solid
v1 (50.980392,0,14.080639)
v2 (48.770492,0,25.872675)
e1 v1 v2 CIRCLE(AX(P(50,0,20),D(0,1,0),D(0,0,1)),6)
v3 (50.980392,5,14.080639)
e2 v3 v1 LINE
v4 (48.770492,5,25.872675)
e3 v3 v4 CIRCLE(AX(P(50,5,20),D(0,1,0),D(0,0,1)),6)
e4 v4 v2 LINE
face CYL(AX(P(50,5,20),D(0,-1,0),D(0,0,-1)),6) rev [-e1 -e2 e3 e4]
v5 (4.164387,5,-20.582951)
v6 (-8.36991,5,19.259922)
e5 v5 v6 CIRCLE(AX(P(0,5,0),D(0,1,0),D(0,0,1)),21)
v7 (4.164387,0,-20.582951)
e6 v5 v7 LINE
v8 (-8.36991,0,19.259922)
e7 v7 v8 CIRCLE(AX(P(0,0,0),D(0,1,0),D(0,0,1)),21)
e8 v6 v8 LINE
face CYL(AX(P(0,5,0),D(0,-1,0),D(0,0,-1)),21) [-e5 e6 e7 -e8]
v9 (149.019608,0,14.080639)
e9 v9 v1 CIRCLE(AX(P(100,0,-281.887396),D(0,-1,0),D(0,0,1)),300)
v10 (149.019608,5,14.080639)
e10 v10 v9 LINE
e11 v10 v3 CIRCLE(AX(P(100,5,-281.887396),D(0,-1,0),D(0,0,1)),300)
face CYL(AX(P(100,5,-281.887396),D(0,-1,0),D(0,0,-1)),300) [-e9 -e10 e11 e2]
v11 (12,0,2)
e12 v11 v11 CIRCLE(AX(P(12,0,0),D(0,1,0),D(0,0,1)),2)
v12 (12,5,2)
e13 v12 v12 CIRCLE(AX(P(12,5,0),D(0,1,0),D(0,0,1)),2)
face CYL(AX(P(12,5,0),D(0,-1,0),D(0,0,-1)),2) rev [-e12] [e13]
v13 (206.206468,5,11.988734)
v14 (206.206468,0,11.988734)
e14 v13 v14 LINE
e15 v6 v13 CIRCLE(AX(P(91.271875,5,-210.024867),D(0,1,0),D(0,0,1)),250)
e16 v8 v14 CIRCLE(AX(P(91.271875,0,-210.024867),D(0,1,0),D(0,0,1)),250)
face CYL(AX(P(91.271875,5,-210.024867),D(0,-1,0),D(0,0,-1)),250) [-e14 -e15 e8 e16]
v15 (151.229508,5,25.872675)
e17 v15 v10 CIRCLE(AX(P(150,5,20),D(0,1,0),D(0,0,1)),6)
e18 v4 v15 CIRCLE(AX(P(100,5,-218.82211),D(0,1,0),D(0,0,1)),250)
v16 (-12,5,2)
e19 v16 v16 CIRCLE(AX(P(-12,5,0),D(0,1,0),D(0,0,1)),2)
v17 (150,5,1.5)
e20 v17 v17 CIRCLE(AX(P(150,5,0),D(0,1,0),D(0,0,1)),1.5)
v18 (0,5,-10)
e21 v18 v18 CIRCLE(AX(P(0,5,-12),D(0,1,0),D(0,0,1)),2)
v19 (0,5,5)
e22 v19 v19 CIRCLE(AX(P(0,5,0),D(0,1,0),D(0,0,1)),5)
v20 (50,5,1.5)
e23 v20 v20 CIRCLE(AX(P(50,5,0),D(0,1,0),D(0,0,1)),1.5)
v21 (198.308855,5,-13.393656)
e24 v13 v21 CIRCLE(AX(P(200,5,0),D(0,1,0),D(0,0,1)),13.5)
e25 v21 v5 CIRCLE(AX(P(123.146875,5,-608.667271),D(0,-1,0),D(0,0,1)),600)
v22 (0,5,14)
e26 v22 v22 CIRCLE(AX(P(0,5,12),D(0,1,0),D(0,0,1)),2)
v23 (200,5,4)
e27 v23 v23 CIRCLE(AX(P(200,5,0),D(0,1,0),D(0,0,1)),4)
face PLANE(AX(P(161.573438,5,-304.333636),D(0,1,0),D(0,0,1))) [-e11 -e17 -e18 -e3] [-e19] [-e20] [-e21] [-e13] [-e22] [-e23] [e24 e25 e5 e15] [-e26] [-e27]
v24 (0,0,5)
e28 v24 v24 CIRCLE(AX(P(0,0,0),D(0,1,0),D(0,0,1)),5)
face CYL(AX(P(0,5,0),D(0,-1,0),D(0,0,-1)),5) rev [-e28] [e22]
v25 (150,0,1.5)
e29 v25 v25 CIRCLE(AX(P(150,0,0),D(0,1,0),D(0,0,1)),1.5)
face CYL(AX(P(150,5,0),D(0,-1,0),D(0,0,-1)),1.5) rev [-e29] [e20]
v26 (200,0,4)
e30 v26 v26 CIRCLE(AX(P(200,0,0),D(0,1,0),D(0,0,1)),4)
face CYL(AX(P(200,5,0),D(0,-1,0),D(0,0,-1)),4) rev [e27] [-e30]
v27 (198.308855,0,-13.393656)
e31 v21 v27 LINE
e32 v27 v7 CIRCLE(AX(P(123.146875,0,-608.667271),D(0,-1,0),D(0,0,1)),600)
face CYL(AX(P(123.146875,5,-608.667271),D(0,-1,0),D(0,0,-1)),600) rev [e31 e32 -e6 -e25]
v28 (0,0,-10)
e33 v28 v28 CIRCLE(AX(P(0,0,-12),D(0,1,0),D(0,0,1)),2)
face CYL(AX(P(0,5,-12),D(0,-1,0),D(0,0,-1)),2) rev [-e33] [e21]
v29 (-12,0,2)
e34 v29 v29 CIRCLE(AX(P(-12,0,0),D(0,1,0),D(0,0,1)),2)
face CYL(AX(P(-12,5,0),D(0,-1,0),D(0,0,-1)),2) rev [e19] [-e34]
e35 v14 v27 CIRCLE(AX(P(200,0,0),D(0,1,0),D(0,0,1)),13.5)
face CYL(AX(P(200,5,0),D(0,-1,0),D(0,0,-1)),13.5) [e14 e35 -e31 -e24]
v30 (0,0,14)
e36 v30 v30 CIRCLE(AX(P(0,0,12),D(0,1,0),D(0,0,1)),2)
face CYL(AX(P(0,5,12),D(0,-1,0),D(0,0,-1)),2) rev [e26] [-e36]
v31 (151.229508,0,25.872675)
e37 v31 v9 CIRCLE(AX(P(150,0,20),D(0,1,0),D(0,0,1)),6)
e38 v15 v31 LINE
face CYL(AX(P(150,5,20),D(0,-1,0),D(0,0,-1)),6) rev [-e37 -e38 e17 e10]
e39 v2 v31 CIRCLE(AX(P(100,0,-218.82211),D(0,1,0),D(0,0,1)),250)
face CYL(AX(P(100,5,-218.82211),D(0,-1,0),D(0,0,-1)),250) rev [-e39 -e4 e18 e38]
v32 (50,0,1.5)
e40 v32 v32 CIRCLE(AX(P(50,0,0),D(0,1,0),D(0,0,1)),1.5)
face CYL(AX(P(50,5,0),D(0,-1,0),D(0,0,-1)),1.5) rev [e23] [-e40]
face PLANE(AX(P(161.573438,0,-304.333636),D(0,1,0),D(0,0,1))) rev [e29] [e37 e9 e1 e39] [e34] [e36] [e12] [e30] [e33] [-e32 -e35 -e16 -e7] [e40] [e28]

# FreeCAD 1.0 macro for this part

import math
import FreeCAD as App
import Part
import Sketcher

V = App.Vector

doc = App.newDocument("Part")
params = doc.addObject("Spreadsheet::Sheet", "Params")
for row, (alias, value) in enumerate([
    ("sketch1_diameter", "4 mm"),
    ("sketch1_diameter2", "10 mm"),
    ("sketch1_diameter3", "3 mm"),
    ("sketch1_diameter4", "8 mm"),
    ("sketch1_radius", "21 mm"),
    ("pad1_length", "5 mm"),
], start=1):
    params.set(f"A{row}", alias)
    params.set(f"B{row}", "=" + value)
    params.setAlias(f"B{row}", alias)

body = doc.addObject("PartDesign::Body", "Body")

# Sketch on XZ plane
sketch1 = body.newObject("Sketcher::SketchObject", "Sketch")
sketch1.AttachmentSupport = (doc.getObject("XZ_Plane"), [""])
sketch1.MapMode = "FlatFace"
sketch1.addGeometry(Part.ArcOfCircle(Part.Circle(V(0, 0, 0), V(0, 0, 1), 21), math.radians(113), math.radians(281)), False)
sketch1.addGeometry(Part.ArcOfCircle(Part.Circle(V(91.3, -210, 0), V(0, 0, 1), 250), math.radians(63), math.radians(113)), False)
sketch1.addGeometry(Part.ArcOfCircle(Part.Circle(V(200, 0, 0), V(0, 0, 1), 13.5), math.radians(-97), math.radians(63)), False)
sketch1.addGeometry(Part.ArcOfCircle(Part.Circle(V(123.1, -608.7, 0), V(0, 0, 1), 600), math.radians(82.8), math.radians(101.44)), False)
sketch1.addGeometry(Part.Circle(V(0, 12, 0), V(0, 0, 1), 2), False)
sketch1.addGeometry(Part.ArcOfCircle(Part.Circle(V(150, 20, 0), V(0, 0, 1), 6), math.radians(-99), math.radians(78)), False)
sketch1.addGeometry(Part.ArcOfCircle(Part.Circle(V(100, -218.8, 0), V(0, 0, 1), 250), math.radians(78), math.radians(102)), False)
sketch1.addGeometry(Part.ArcOfCircle(Part.Circle(V(50, 20, 0), V(0, 0, 1), 6), math.radians(102), math.radians(279)), False)
sketch1.addGeometry(Part.ArcOfCircle(Part.Circle(V(100, -281.9, 0), V(0, 0, 1), 300), math.radians(80.6), math.radians(99.4)), False)
sketch1.addGeometry(Part.Circle(V(-12, 0, 0), V(0, 0, 1), 2), False)
sketch1.addGeometry(Part.Circle(V(0, 0, 0), V(0, 0, 1), 5), False)
sketch1.addGeometry(Part.Circle(V(12, 0, 0), V(0, 0, 1), 2), False)
sketch1.addGeometry(Part.Circle(V(50, 0, 0), V(0, 0, 1), 1.5), False)
sketch1.addGeometry(Part.Circle(V(0, -12, 0), V(0, 0, 1), 2), False)
sketch1.addGeometry(Part.Circle(V(150, 0, 0), V(0, 0, 1), 1.5), False)
sketch1.addGeometry(Part.Circle(V(200, 0, 0), V(0, 0, 1), 4), False)
sketch1.addConstraint(Sketcher.Constraint("Tangent", 0, 1, 1, 2))
sketch1.addConstraint(Sketcher.Constraint("Tangent", 1, 1, 2, 2))
sketch1.addConstraint(Sketcher.Constraint("Tangent", 2, 1, 3, 1))
sketch1.addConstraint(Sketcher.Constraint("Tangent", 3, 2, 0, 2))
sketch1.addConstraint(Sketcher.Constraint("Tangent", 5, 2, 6, 1))
sketch1.addConstraint(Sketcher.Constraint("Tangent", 6, 2, 7, 1))
sketch1.addConstraint(Sketcher.Constraint("Tangent", 7, 2, 8, 2))
sketch1.addConstraint(Sketcher.Constraint("Tangent", 8, 1, 5, 1))
sketch1.addConstraint(Sketcher.Constraint("Coincident", 0, 3, -1, 1))
sketch1.addConstraint(Sketcher.Constraint("Coincident", 10, 3, -1, 1))
sketch1.addConstraint(Sketcher.Constraint("Coincident", 15, 3, 2, 3))
sketch1.addConstraint(Sketcher.Constraint("Equal", 1, 6))
sketch1.addConstraint(Sketcher.Constraint("Equal", 5, 7))
sketch1.addConstraint(Sketcher.Constraint("Equal", 4, 9))
sketch1.addConstraint(Sketcher.Constraint("Equal", 9, 11))
sketch1.addConstraint(Sketcher.Constraint("Equal", 11, 13))
sketch1.addConstraint(Sketcher.Constraint("Equal", 12, 14))
sketch1.addConstraint(Sketcher.Constraint("Symmetric", 9, 3, 11, 3, -1, 1))
sketch1.addConstraint(Sketcher.Constraint("Symmetric", 4, 3, 13, 3, -1, 1))
sketch1.addConstraint(Sketcher.Constraint("PointOnObject", 2, 3, -1))
sketch1.addConstraint(Sketcher.Constraint("PointOnObject", 4, 3, -2))
sketch1.addConstraint(Sketcher.Constraint("PointOnObject", 9, 3, -1))
sketch1.addConstraint(Sketcher.Constraint("PointOnObject", 12, 3, -1))
sketch1.addConstraint(Sketcher.Constraint("PointOnObject", 14, 3, -1))
sketch1.addConstraint(Sketcher.Constraint("Horizontal", 5, 3, 7, 3))
sketch1.addConstraint(Sketcher.Constraint("Vertical", 7, 3, 12, 3))
sketch1.addConstraint(Sketcher.Constraint("Vertical", 5, 3, 14, 3))
sketch1.addConstraint(Sketcher.Constraint("Diameter", 4, 4.0))
sketch1.addConstraint(Sketcher.Constraint("Diameter", 10, 10.0))
sketch1.addConstraint(Sketcher.Constraint("Diameter", 12, 3.0))
sketch1.addConstraint(Sketcher.Constraint("Diameter", 15, 8.0))
sketch1.addConstraint(Sketcher.Constraint("Radius", 0, 21.0))
sketch1.addConstraint(Sketcher.Constraint("Radius", 1, 250.0))
sketch1.addConstraint(Sketcher.Constraint("Radius", 3, 600.0))
sketch1.addConstraint(Sketcher.Constraint("Radius", 5, 6.0))
sketch1.addConstraint(Sketcher.Constraint("Radius", 8, 300.0))
sketch1.addConstraint(Sketcher.Constraint("Radius", 2, 13.5))
sketch1.addConstraint(Sketcher.Constraint("DistanceX", -1, 1, 2, 3, 200.0))
sketch1.addConstraint(Sketcher.Constraint("DistanceY", -1, 1, 4, 3, 12.0))
sketch1.addConstraint(Sketcher.Constraint("DistanceX", -1, 1, 5, 3, 150.0))
sketch1.addConstraint(Sketcher.Constraint("DistanceY", -1, 1, 5, 3, 20.0))
sketch1.addConstraint(Sketcher.Constraint("DistanceX", -1, 1, 6, 3, 100.0))
sketch1.addConstraint(Sketcher.Constraint("DistanceX", 9, 3, -1, 1, 12.0))
sketch1.setExpression("Constraints[27]", "Params.sketch1_diameter")
sketch1.setExpression("Constraints[28]", "Params.sketch1_diameter2")
sketch1.setExpression("Constraints[29]", "Params.sketch1_diameter3")
sketch1.setExpression("Constraints[30]", "Params.sketch1_diameter4")
sketch1.setExpression("Constraints[31]", "Params.sketch1_radius")
pad1 = body.newObject("PartDesign::Pad", "Pad")
pad1.Profile = sketch1
pad1.setExpression("Length", "Params.pad1_length")
pad1.Reversed = True

doc.recompute()
